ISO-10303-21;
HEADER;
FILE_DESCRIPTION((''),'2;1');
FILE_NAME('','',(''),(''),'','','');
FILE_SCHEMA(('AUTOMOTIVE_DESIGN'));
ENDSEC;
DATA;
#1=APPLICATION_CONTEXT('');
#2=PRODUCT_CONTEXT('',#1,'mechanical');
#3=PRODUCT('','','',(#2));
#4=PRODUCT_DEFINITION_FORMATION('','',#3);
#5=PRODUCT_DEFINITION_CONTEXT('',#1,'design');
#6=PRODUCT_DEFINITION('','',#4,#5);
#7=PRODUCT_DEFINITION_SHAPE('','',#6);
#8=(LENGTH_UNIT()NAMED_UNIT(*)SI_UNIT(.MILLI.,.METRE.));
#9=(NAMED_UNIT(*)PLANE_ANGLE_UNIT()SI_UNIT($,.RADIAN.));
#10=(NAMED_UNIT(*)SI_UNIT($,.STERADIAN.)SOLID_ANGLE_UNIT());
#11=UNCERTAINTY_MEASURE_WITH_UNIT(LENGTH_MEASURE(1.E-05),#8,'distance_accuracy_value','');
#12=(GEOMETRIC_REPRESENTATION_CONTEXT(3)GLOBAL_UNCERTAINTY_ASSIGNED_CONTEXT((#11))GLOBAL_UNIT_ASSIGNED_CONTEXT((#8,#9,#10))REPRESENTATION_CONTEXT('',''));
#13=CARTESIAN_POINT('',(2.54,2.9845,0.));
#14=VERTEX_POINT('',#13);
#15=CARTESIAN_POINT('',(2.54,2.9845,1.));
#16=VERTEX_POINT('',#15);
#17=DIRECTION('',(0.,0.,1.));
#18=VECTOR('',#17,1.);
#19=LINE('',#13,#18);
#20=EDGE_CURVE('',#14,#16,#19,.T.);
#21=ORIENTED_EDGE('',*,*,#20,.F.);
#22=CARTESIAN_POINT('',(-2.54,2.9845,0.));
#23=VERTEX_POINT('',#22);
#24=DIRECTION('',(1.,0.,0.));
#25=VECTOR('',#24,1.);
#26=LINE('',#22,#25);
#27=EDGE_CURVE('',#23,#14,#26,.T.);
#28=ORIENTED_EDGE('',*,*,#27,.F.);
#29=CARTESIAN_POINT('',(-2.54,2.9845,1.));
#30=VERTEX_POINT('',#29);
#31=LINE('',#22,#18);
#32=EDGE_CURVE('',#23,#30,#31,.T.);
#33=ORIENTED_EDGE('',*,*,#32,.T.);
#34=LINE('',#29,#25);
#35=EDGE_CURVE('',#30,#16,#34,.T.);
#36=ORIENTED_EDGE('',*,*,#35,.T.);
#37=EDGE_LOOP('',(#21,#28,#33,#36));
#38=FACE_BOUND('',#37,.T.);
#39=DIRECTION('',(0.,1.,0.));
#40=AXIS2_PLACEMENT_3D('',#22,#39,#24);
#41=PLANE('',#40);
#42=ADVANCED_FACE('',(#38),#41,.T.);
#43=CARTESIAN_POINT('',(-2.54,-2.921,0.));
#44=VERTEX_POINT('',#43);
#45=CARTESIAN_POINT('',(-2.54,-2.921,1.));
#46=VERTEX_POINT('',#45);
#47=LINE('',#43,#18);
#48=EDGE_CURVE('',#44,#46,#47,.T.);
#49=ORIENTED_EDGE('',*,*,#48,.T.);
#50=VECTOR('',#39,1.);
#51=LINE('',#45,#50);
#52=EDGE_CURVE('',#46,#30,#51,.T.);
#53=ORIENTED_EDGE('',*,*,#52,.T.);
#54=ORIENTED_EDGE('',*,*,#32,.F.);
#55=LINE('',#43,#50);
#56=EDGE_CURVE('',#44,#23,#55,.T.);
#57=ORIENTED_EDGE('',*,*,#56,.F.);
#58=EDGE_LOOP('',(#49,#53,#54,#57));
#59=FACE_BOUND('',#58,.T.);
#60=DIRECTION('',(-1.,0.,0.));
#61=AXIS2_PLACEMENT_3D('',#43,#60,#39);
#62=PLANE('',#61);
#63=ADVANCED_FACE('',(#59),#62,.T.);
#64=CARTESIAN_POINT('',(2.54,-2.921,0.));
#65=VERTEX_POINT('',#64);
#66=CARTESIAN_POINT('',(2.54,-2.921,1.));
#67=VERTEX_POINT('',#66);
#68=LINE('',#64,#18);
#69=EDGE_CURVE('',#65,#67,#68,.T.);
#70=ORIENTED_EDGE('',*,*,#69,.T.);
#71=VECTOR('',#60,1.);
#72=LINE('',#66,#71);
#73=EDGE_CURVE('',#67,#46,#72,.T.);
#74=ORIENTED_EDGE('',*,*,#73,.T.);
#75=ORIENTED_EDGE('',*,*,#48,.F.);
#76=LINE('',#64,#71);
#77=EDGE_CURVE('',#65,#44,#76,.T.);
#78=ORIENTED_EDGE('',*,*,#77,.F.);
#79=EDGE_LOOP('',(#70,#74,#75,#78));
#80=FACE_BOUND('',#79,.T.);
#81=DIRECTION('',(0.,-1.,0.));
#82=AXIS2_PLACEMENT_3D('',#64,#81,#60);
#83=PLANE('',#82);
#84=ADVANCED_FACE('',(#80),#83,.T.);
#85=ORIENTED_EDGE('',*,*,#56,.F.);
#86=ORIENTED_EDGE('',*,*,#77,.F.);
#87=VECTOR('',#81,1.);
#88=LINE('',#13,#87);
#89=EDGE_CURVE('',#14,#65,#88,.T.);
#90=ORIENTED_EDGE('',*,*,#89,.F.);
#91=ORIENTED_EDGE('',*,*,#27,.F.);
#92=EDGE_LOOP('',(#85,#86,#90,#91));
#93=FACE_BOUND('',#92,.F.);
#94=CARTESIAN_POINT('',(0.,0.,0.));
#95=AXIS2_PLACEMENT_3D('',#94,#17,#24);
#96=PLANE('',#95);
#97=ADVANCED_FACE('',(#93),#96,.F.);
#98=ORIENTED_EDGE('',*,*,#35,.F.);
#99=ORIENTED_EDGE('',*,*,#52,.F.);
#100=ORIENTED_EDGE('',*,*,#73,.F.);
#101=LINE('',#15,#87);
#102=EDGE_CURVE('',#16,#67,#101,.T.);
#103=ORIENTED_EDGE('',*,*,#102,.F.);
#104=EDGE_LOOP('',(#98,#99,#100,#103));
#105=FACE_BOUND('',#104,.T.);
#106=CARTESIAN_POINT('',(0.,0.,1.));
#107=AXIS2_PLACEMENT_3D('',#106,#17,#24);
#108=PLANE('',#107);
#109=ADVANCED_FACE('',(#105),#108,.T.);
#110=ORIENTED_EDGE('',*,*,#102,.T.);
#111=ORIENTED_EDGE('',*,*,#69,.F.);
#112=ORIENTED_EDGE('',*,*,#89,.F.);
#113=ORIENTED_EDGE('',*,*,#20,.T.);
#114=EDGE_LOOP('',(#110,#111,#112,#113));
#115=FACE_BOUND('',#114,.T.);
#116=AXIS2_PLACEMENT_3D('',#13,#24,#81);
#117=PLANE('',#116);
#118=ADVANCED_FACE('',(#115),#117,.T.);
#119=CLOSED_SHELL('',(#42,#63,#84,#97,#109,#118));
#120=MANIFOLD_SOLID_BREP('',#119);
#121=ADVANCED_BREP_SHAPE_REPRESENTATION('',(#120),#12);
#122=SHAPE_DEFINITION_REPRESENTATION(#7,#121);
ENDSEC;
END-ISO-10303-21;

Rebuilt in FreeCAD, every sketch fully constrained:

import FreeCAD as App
import Part
import Sketcher

V = App.Vector


def add_polygon(sketch, points):
    """Adds a closed chain of lines whose ends are joined by coincident constraints."""
    first, n = sketch.GeometryCount, len(points)
    for a, b in zip(points, points[1:] + points[:1]):
        sketch.addGeometry(Part.LineSegment(App.Vector(*a, 0), App.Vector(*b, 0)), False)
    for i in range(n):
        sketch.addConstraint(Sketcher.Constraint("Coincident", first + i, 2, first + (i + 1) % n, 1))

doc = App.newDocument("Part")
body = doc.addObject("PartDesign::Body", "Body")

sketch1 = doc.addObject("Sketcher::SketchObject", "Sketch")
body.addObject(sketch1)
sketch1.AttachmentSupport = (doc.XY_Plane, [""])
sketch1.MapMode = "FlatFace"
add_polygon(sketch1, [(3, 3), (-3, 3), (-3, -3), (3, -3)])
sketch1.addConstraint(Sketcher.Constraint("Horizontal", 0))
sketch1.addConstraint(Sketcher.Constraint("Vertical", 1))
sketch1.addConstraint(Sketcher.Constraint("Horizontal", 2))
sketch1.addConstraint(Sketcher.Constraint("Vertical", 3))
sketch1.addConstraint(Sketcher.Constraint("DistanceX", 0, 2, 0, 1, 5.08))
sketch1.addConstraint(Sketcher.Constraint("DistanceX", 0, 2, -1, 1, 2.54))
sketch1.addConstraint(Sketcher.Constraint("DistanceY", 1, 2, 1, 1, 5.9055))
sketch1.addConstraint(Sketcher.Constraint("DistanceY", 1, 2, -1, 1, 2.921))
pad1 = doc.addObject("PartDesign::Pad", "Pad")
body.addObject(pad1)
pad1.Profile = sketch1
pad1.Length = 1

doc.recompute()
